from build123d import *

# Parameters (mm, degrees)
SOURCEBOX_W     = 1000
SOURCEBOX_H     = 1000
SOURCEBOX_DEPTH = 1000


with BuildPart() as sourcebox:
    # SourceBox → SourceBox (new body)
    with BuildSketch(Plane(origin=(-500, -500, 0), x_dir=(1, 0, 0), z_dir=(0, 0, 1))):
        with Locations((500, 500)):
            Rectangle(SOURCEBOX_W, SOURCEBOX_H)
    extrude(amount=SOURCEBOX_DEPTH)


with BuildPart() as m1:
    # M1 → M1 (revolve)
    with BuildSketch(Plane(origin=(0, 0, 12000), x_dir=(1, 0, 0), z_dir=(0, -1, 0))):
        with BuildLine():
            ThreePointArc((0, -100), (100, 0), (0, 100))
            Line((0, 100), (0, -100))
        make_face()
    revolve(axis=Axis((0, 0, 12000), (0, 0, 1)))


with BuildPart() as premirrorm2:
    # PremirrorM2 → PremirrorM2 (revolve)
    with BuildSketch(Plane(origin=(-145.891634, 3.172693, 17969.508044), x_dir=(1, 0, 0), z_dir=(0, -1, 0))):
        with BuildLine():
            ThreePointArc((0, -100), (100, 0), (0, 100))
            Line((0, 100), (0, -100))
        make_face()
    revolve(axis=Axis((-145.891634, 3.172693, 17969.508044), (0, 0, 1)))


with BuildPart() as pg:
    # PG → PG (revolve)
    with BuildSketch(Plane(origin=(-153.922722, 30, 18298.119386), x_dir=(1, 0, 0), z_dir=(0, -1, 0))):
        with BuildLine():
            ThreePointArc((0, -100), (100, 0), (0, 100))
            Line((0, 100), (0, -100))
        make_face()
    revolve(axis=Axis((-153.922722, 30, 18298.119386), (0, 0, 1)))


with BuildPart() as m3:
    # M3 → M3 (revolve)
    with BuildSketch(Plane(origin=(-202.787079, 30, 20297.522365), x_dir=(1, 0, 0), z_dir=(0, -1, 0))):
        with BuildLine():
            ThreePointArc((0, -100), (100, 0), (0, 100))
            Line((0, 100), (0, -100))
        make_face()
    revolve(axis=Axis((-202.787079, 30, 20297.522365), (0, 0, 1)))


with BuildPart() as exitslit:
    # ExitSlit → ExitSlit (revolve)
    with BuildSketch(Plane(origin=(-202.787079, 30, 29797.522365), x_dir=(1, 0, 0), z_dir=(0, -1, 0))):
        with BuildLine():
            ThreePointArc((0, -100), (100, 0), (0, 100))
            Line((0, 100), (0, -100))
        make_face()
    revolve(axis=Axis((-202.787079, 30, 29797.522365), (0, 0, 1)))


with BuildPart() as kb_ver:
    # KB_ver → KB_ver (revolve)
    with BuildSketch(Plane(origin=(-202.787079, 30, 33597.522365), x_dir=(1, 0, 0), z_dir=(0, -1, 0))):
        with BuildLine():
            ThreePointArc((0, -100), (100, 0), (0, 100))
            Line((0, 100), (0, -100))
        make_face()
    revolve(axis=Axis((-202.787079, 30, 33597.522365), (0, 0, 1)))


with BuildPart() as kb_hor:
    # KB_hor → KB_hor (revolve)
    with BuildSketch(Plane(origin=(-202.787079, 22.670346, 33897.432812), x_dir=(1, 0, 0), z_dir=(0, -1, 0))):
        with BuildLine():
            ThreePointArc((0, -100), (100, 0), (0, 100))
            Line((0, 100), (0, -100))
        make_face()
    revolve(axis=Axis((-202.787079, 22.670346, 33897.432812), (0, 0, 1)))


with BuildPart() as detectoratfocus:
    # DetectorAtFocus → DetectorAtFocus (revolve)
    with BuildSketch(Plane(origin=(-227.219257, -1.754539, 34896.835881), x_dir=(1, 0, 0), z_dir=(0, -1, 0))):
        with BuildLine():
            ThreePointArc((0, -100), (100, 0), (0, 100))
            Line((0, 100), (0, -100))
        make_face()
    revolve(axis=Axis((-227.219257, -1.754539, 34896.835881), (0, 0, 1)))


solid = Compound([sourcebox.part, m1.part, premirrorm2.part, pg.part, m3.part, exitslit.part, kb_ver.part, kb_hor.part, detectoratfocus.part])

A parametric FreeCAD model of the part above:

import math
import FreeCAD as App
import Part
import Sketcher
from FreeCAD import Vector

doc = App.newDocument("Part")
params = doc.addObject("Spreadsheet::Sheet", "Params")
for row, (alias, value) in enumerate([
    ("sketch1_width", "1000 mm"),
    ("pad1_length", "1000 mm"),
    ("sketch2_radius", "100 mm"),
    ("revolution_angle", "360 deg"),
    ("sketch3_radius", "100 mm"),
    ("revolution2_angle", "360 deg"),
    ("sketch4_radius", "100 mm"),
    ("revolution3_angle", "360 deg"),
    ("sketch5_radius", "100 mm"),
    ("revolution4_angle", "360 deg"),
    ("sketch6_radius", "100 mm"),
    ("revolution5_angle", "360 deg"),
    ("sketch7_radius", "100 mm"),
    ("revolution6_angle", "360 deg"),
    ("sketch8_radius", "100 mm"),
    ("revolution7_angle", "360 deg"),
    ("sketch9_radius", "100 mm"),
    ("revolution8_angle", "360 deg"),
], start=1):
    params.set(f"A{row}", alias)
    params.set(f"B{row}", "=" + value)
    params.setAlias(f"B{row}", alias)

body = doc.addObject("PartDesign::Body", "Body")

# Sketch on XY plane
sketch1 = body.newObject("Sketcher::SketchObject", "Sketch")
sketch1.AttachmentSupport = (doc.getObject("XY_Plane"), [""])
sketch1.MapMode = "FlatFace"
sketch1.addGeometry([
    Part.LineSegment(Vector(-500, 500, 0), Vector(-500, -500, 0)),
    Part.LineSegment(Vector(-500, -500, 0), Vector(500, -500, 0)),
    Part.LineSegment(Vector(500, -500, 0), Vector(500, 500, 0)),
    Part.LineSegment(Vector(500, 500, 0), Vector(-500, 500, 0)),
], False)
sketch1.addConstraint([
    Sketcher.Constraint("Coincident", 0, 2, 1, 1),
    Sketcher.Constraint("Coincident", 1, 2, 2, 1),
    Sketcher.Constraint("Coincident", 2, 2, 3, 1),
    Sketcher.Constraint("Coincident", 3, 2, 0, 1),
    Sketcher.Constraint("Vertical", 0),
    Sketcher.Constraint("Horizontal", 1),
    Sketcher.Constraint("Vertical", 2),
    Sketcher.Constraint("Horizontal", 3),
    Sketcher.Constraint("Symmetric", 0, 2, 2, 2, -1, 1),
    Sketcher.Constraint("Equal", 3, 0),
    Sketcher.Constraint("DistanceX", 1, 1, 1, 2, 1000.0),
])
sketch1.setExpression("Constraints[10]", "Params.sketch1_width")
pad1 = body.newObject("PartDesign::Pad", "Pad")
pad1.Profile = sketch1
pad1.setExpression("Length", "Params.pad1_length")
body2 = doc.addObject("PartDesign::Body", "Body001")

# Sketch on XZ plane
sketch2 = body2.newObject("Sketcher::SketchObject", "Sketch001")
sketch2.AttachmentSupport = (doc.getObject("XZ_Plane001"), [""])
sketch2.MapMode = "FlatFace"
sketch2.addGeometry([
    Part.ArcOfCircle(Part.Circle(Vector(0, 12000, 0), Vector(0, 0, 1), 100), math.radians(-90), math.radians(90)),
    Part.LineSegment(Vector(0, 12100, 0), Vector(0, 11900, 0)),
], False)
sketch2.addConstraint([
    Sketcher.Constraint("Coincident", 0, 1, 1, 2),
    Sketcher.Constraint("Coincident", 1, 1, 0, 2),
    Sketcher.Constraint("Vertical", 1),
    Sketcher.Constraint("PointOnObject", 0, 3, -2),
    Sketcher.Constraint("PointOnObject", 0, 1, -2),
    Sketcher.Constraint("Radius", 0, 100.0),
    Sketcher.Constraint("DistanceY", -1, 1, 0, 3, 12000.0),
])
sketch2.setExpression("Constraints[5]", "Params.sketch2_radius")
revolution = body2.newObject("PartDesign::Revolution", "Revolution")
revolution.Profile = sketch2
revolution.ReferenceAxis = (sketch2, ["V_Axis"])
revolution.setExpression("Angle", "Params.revolution_angle")
body3 = doc.addObject("PartDesign::Body", "Body002")

# Sketch on XZ plane
sketch3 = body3.newObject("Sketcher::SketchObject", "Sketch002")
sketch3.AttachmentSupport = (doc.getObject("XZ_Plane002"), [""])
sketch3.MapMode = "FlatFace"
sketch3.AttachmentOffset = App.Placement(Vector(0, 0, -3.172693), App.Rotation())
sketch3.addGeometry([
    Part.ArcOfCircle(Part.Circle(Vector(-145.891634, 17969.508044, 0), Vector(0, 0, 1), 100), math.radians(-90), math.radians(90)),
    Part.LineSegment(Vector(-145.891634, 18069.508044, 0), Vector(-145.891634, 17869.508044, 0)),
], False)
sketch3.addGeometry(Part.LineSegment(Vector(-145.891634, 17869.508044, 0), Vector(-145.891634, 18069.508044, 0)), True)  # axis
sketch3.addConstraint([
    Sketcher.Constraint("Coincident", 0, 1, 1, 2),
    Sketcher.Constraint("Coincident", 1, 1, 0, 2),
    Sketcher.Constraint("Vertical", 1),
    Sketcher.Constraint("Vertical", 2),
    Sketcher.Constraint("Coincident", 2, 1, 0, 1),
    Sketcher.Constraint("Equal", 1, 2),
    Sketcher.Constraint("Radius", 0, 100.0),
    Sketcher.Constraint("DistanceX", 0, 3, -1, 1, 145.891634),
    Sketcher.Constraint("DistanceY", -1, 1, 0, 3, 17969.508044),
    Sketcher.Constraint("DistanceX", 0, 1, -1, 1, 145.891634),
])
sketch3.setExpression("Constraints[6]", "Params.sketch3_radius")
revolution2 = body3.newObject("PartDesign::Revolution", "Revolution001")
revolution2.Profile = sketch3
revolution2.ReferenceAxis = (sketch3, ["Axis0"])
revolution2.setExpression("Angle", "Params.revolution2_angle")
body4 = doc.addObject("PartDesign::Body", "Body003")

# Sketch on XZ plane
sketch4 = body4.newObject("Sketcher::SketchObject", "Sketch003")
sketch4.AttachmentSupport = (doc.getObject("XZ_Plane003"), [""])
sketch4.MapMode = "FlatFace"
sketch4.AttachmentOffset = App.Placement(Vector(0, 0, -30), App.Rotation())
sketch4.addGeometry([
    Part.ArcOfCircle(Part.Circle(Vector(-153.922722, 18298.119386, 0), Vector(0, 0, 1), 100), math.radians(-90), math.radians(90)),
    Part.LineSegment(Vector(-153.922722, 18398.119386, 0), Vector(-153.922722, 18198.119386, 0)),
], False)
sketch4.addGeometry(Part.LineSegment(Vector(-153.922722, 18198.119386, 0), Vector(-153.922722, 18398.119386, 0)), True)  # axis
sketch4.addConstraint([
    Sketcher.Constraint("Coincident", 0, 1, 1, 2),
    Sketcher.Constraint("Coincident", 1, 1, 0, 2),
    Sketcher.Constraint("Vertical", 1),
    Sketcher.Constraint("Vertical", 2),
    Sketcher.Constraint("Coincident", 2, 1, 0, 1),
    Sketcher.Constraint("Equal", 1, 2),
    Sketcher.Constraint("Radius", 0, 100.0),
    Sketcher.Constraint("DistanceX", 0, 3, -1, 1, 153.922722),
    Sketcher.Constraint("DistanceX", 0, 1, -1, 1, 153.922722),
    Sketcher.Constraint("DistanceY", -1, 1, 0, 3, 18298.119386),
])
sketch4.setExpression("Constraints[6]", "Params.sketch4_radius")
revolution3 = body4.newObject("PartDesign::Revolution", "Revolution002")
revolution3.Profile = sketch4
revolution3.ReferenceAxis = (sketch4, ["Axis0"])
revolution3.setExpression("Angle", "Params.revolution3_angle")
body5 = doc.addObject("PartDesign::Body", "Body004")

# Sketch on XZ plane
sketch5 = body5.newObject("Sketcher::SketchObject", "Sketch004")
sketch5.AttachmentSupport = (doc.getObject("XZ_Plane004"), [""])
sketch5.MapMode = "FlatFace"
sketch5.AttachmentOffset = App.Placement(Vector(0, 0, -30), App.Rotation())
sketch5.addGeometry([
    Part.ArcOfCircle(Part.Circle(Vector(-202.787079, 20297.522365, 0), Vector(0, 0, 1), 100), math.radians(-90), math.radians(90)),
    Part.LineSegment(Vector(-202.787079, 20397.522365, 0), Vector(-202.787079, 20197.522365, 0)),
], False)
sketch5.addGeometry(Part.LineSegment(Vector(-202.787079, 20197.522365, 0), Vector(-202.787079, 20397.522365, 0)), True)  # axis
sketch5.addConstraint([
    Sketcher.Constraint("Coincident", 0, 1, 1, 2),
    Sketcher.Constraint("Coincident", 1, 1, 0, 2),
    Sketcher.Constraint("Vertical", 1),
    Sketcher.Constraint("Vertical", 2),
    Sketcher.Constraint("Coincident", 2, 1, 0, 1),
    Sketcher.Constraint("Equal", 1, 2),
    Sketcher.Constraint("Radius", 0, 100.0),
    Sketcher.Constraint("DistanceX", 0, 3, -1, 1, 202.787079),
    Sketcher.Constraint("DistanceX", 0, 1, -1, 1, 202.787079),
    Sketcher.Constraint("DistanceY", -1, 1, 0, 3, 20297.522365),
])
sketch5.setExpression("Constraints[6]", "Params.sketch5_radius")
revolution4 = body5.newObject("PartDesign::Revolution", "Revolution003")
revolution4.Profile = sketch5
revolution4.ReferenceAxis = (sketch5, ["Axis0"])
revolution4.setExpression("Angle", "Params.revolution4_angle")
body6 = doc.addObject("PartDesign::Body", "Body005")

# Sketch on XZ plane
sketch6 = body6.newObject("Sketcher::SketchObject", "Sketch005")
sketch6.AttachmentSupport = (doc.getObject("XZ_Plane005"), [""])
sketch6.MapMode = "FlatFace"
sketch6.AttachmentOffset = App.Placement(Vector(0, 0, -30), App.Rotation())
sketch6.addGeometry([
    Part.ArcOfCircle(Part.Circle(Vector(-202.787079, 29797.522365, 0), Vector(0, 0, 1), 100), math.radians(-90), math.radians(90)),
    Part.LineSegment(Vector(-202.787079, 29897.522365, 0), Vector(-202.787079, 29697.522365, 0)),
], False)
sketch6.addGeometry(Part.LineSegment(Vector(-202.787079, 29697.522365, 0), Vector(-202.787079, 29897.522365, 0)), True)  # axis
sketch6.addConstraint([
    Sketcher.Constraint("Coincident", 0, 1, 1, 2),
    Sketcher.Constraint("Coincident", 1, 1, 0, 2),
    Sketcher.Constraint("Vertical", 1),
    Sketcher.Constraint("Vertical", 2),
    Sketcher.Constraint("Coincident", 2, 1, 0, 1),
    Sketcher.Constraint("Equal", 1, 2),
    Sketcher.Constraint("Radius", 0, 100.0),
    Sketcher.Constraint("DistanceX", 0, 3, -1, 1, 202.787079),
    Sketcher.Constraint("DistanceX", 0, 1, -1, 1, 202.787079),
    Sketcher.Constraint("DistanceY", -1, 1, 0, 3, 29797.522365),
])
sketch6.setExpression("Constraints[6]", "Params.sketch6_radius")
revolution5 = body6.newObject("PartDesign::Revolution", "Revolution004")
revolution5.Profile = sketch6
revolution5.ReferenceAxis = (sketch6, ["Axis0"])
revolution5.setExpression("Angle", "Params.revolution5_angle")
body7 = doc.addObject("PartDesign::Body", "Body006")

# Sketch on XZ plane
sketch7 = body7.newObject("Sketcher::SketchObject", "Sketch006")
sketch7.AttachmentSupport = (doc.getObject("XZ_Plane006"), [""])
sketch7.MapMode = "FlatFace"
sketch7.AttachmentOffset = App.Placement(Vector(0, 0, -30), App.Rotation())
sketch7.addGeometry([
    Part.ArcOfCircle(Part.Circle(Vector(-202.787079, 33597.522365, 0), Vector(0, 0, 1), 100), math.radians(-90), math.radians(90)),
    Part.LineSegment(Vector(-202.787079, 33697.522365, 0), Vector(-202.787079, 33497.522365, 0)),
], False)
sketch7.addGeometry(Part.LineSegment(Vector(-202.787079, 33497.522365, 0), Vector(-202.787079, 33697.522365, 0)), True)  # axis
sketch7.addConstraint([
    Sketcher.Constraint("Coincident", 0, 1, 1, 2),
    Sketcher.Constraint("Coincident", 1, 1, 0, 2),
    Sketcher.Constraint("Vertical", 1),
    Sketcher.Constraint("Vertical", 2),
    Sketcher.Constraint("Coincident", 2, 1, 0, 1),
    Sketcher.Constraint("Equal", 1, 2),
    Sketcher.Constraint("Radius", 0, 100.0),
    Sketcher.Constraint("DistanceX", 0, 3, -1, 1, 202.787079),
    Sketcher.Constraint("DistanceX", 0, 1, -1, 1, 202.787079),
    Sketcher.Constraint("DistanceY", -1, 1, 0, 3, 33597.522365),
])
sketch7.setExpression("Constraints[6]", "Params.sketch7_radius")
revolution6 = body7.newObject("PartDesign::Revolution", "Revolution005")
revolution6.Profile = sketch7
revolution6.ReferenceAxis = (sketch7, ["Axis0"])
revolution6.setExpression("Angle", "Params.revolution6_angle")
body8 = doc.addObject("PartDesign::Body", "Body007")

# Sketch on XZ plane
sketch8 = body8.newObject("Sketcher::SketchObject", "Sketch007")
sketch8.AttachmentSupport = (doc.getObject("XZ_Plane007"), [""])
sketch8.MapMode = "FlatFace"
sketch8.AttachmentOffset = App.Placement(Vector(0, 0, -22.670346), App.Rotation())
sketch8.addGeometry([
    Part.ArcOfCircle(Part.Circle(Vector(-202.787079, 33897.432812, 0), Vector(0, 0, 1), 100), math.radians(-90), math.radians(90)),
    Part.LineSegment(Vector(-202.787079, 33997.432812, 0), Vector(-202.787079, 33797.432812, 0)),
], False)
sketch8.addGeometry(Part.LineSegment(Vector(-202.787079, 33797.432812, 0), Vector(-202.787079, 33997.432812, 0)), True)  # axis
sketch8.addConstraint([
    Sketcher.Constraint("Coincident", 0, 1, 1, 2),
    Sketcher.Constraint("Coincident", 1, 1, 0, 2),
    Sketcher.Constraint("Vertical", 1),
    Sketcher.Constraint("Vertical", 2),
    Sketcher.Constraint("Coincident", 2, 1, 0, 1),
    Sketcher.Constraint("Equal", 1, 2),
    Sketcher.Constraint("Radius", 0, 100.0),
    Sketcher.Constraint("DistanceX", 0, 3, -1, 1, 202.787079),
    Sketcher.Constraint("DistanceX", 0, 1, -1, 1, 202.787079),
    Sketcher.Constraint("DistanceY", -1, 1, 0, 3, 33897.432812),
])
sketch8.setExpression("Constraints[6]", "Params.sketch8_radius")
revolution7 = body8.newObject("PartDesign::Revolution", "Revolution006")
revolution7.Profile = sketch8
revolution7.ReferenceAxis = (sketch8, ["Axis0"])
revolution7.setExpression("Angle", "Params.revolution7_angle")
body9 = doc.addObject("PartDesign::Body", "Body008")

# Sketch on XZ plane
sketch9 = body9.newObject("Sketcher::SketchObject", "Sketch008")
sketch9.AttachmentSupport = (doc.getObject("XZ_Plane008"), [""])
sketch9.MapMode = "FlatFace"
sketch9.AttachmentOffset = App.Placement(Vector(0, 0, 1.754539), App.Rotation())
sketch9.addGeometry([
    Part.ArcOfCircle(Part.Circle(Vector(-227.219257, 34896.835881, 0), Vector(0, 0, 1), 100), math.radians(-90), math.radians(90)),
    Part.LineSegment(Vector(-227.219257, 34996.835881, 0), Vector(-227.219257, 34796.835881, 0)),
], False)
sketch9.addGeometry(Part.LineSegment(Vector(-227.219257, 34796.835881, 0), Vector(-227.219257, 34996.835881, 0)), True)  # axis
sketch9.addConstraint([
    Sketcher.Constraint("Coincident", 0, 1, 1, 2),
    Sketcher.Constraint("Coincident", 1, 1, 0, 2),
    Sketcher.Constraint("Vertical", 1),
    Sketcher.Constraint("Vertical", 2),
    Sketcher.Constraint("Coincident", 2, 1, 0, 1),
    Sketcher.Constraint("Equal", 1, 2),
    Sketcher.Constraint("Radius", 0, 100.0),
    Sketcher.Constraint("DistanceY", -1, 1, 0, 3, 34896.835881),
    Sketcher.Constraint("DistanceX", 0, 3, -1, 1, 227.219257),
    Sketcher.Constraint("DistanceX", 0, 1, -1, 1, 227.219257),
])
sketch9.setExpression("Constraints[6]", "Params.sketch9_radius")
revolution8 = body9.newObject("PartDesign::Revolution", "Revolution007")
revolution8.Profile = sketch9
revolution8.ReferenceAxis = (sketch9, ["Axis0"])
revolution8.setExpression("Angle", "Params.revolution8_angle")

doc.recompute()
